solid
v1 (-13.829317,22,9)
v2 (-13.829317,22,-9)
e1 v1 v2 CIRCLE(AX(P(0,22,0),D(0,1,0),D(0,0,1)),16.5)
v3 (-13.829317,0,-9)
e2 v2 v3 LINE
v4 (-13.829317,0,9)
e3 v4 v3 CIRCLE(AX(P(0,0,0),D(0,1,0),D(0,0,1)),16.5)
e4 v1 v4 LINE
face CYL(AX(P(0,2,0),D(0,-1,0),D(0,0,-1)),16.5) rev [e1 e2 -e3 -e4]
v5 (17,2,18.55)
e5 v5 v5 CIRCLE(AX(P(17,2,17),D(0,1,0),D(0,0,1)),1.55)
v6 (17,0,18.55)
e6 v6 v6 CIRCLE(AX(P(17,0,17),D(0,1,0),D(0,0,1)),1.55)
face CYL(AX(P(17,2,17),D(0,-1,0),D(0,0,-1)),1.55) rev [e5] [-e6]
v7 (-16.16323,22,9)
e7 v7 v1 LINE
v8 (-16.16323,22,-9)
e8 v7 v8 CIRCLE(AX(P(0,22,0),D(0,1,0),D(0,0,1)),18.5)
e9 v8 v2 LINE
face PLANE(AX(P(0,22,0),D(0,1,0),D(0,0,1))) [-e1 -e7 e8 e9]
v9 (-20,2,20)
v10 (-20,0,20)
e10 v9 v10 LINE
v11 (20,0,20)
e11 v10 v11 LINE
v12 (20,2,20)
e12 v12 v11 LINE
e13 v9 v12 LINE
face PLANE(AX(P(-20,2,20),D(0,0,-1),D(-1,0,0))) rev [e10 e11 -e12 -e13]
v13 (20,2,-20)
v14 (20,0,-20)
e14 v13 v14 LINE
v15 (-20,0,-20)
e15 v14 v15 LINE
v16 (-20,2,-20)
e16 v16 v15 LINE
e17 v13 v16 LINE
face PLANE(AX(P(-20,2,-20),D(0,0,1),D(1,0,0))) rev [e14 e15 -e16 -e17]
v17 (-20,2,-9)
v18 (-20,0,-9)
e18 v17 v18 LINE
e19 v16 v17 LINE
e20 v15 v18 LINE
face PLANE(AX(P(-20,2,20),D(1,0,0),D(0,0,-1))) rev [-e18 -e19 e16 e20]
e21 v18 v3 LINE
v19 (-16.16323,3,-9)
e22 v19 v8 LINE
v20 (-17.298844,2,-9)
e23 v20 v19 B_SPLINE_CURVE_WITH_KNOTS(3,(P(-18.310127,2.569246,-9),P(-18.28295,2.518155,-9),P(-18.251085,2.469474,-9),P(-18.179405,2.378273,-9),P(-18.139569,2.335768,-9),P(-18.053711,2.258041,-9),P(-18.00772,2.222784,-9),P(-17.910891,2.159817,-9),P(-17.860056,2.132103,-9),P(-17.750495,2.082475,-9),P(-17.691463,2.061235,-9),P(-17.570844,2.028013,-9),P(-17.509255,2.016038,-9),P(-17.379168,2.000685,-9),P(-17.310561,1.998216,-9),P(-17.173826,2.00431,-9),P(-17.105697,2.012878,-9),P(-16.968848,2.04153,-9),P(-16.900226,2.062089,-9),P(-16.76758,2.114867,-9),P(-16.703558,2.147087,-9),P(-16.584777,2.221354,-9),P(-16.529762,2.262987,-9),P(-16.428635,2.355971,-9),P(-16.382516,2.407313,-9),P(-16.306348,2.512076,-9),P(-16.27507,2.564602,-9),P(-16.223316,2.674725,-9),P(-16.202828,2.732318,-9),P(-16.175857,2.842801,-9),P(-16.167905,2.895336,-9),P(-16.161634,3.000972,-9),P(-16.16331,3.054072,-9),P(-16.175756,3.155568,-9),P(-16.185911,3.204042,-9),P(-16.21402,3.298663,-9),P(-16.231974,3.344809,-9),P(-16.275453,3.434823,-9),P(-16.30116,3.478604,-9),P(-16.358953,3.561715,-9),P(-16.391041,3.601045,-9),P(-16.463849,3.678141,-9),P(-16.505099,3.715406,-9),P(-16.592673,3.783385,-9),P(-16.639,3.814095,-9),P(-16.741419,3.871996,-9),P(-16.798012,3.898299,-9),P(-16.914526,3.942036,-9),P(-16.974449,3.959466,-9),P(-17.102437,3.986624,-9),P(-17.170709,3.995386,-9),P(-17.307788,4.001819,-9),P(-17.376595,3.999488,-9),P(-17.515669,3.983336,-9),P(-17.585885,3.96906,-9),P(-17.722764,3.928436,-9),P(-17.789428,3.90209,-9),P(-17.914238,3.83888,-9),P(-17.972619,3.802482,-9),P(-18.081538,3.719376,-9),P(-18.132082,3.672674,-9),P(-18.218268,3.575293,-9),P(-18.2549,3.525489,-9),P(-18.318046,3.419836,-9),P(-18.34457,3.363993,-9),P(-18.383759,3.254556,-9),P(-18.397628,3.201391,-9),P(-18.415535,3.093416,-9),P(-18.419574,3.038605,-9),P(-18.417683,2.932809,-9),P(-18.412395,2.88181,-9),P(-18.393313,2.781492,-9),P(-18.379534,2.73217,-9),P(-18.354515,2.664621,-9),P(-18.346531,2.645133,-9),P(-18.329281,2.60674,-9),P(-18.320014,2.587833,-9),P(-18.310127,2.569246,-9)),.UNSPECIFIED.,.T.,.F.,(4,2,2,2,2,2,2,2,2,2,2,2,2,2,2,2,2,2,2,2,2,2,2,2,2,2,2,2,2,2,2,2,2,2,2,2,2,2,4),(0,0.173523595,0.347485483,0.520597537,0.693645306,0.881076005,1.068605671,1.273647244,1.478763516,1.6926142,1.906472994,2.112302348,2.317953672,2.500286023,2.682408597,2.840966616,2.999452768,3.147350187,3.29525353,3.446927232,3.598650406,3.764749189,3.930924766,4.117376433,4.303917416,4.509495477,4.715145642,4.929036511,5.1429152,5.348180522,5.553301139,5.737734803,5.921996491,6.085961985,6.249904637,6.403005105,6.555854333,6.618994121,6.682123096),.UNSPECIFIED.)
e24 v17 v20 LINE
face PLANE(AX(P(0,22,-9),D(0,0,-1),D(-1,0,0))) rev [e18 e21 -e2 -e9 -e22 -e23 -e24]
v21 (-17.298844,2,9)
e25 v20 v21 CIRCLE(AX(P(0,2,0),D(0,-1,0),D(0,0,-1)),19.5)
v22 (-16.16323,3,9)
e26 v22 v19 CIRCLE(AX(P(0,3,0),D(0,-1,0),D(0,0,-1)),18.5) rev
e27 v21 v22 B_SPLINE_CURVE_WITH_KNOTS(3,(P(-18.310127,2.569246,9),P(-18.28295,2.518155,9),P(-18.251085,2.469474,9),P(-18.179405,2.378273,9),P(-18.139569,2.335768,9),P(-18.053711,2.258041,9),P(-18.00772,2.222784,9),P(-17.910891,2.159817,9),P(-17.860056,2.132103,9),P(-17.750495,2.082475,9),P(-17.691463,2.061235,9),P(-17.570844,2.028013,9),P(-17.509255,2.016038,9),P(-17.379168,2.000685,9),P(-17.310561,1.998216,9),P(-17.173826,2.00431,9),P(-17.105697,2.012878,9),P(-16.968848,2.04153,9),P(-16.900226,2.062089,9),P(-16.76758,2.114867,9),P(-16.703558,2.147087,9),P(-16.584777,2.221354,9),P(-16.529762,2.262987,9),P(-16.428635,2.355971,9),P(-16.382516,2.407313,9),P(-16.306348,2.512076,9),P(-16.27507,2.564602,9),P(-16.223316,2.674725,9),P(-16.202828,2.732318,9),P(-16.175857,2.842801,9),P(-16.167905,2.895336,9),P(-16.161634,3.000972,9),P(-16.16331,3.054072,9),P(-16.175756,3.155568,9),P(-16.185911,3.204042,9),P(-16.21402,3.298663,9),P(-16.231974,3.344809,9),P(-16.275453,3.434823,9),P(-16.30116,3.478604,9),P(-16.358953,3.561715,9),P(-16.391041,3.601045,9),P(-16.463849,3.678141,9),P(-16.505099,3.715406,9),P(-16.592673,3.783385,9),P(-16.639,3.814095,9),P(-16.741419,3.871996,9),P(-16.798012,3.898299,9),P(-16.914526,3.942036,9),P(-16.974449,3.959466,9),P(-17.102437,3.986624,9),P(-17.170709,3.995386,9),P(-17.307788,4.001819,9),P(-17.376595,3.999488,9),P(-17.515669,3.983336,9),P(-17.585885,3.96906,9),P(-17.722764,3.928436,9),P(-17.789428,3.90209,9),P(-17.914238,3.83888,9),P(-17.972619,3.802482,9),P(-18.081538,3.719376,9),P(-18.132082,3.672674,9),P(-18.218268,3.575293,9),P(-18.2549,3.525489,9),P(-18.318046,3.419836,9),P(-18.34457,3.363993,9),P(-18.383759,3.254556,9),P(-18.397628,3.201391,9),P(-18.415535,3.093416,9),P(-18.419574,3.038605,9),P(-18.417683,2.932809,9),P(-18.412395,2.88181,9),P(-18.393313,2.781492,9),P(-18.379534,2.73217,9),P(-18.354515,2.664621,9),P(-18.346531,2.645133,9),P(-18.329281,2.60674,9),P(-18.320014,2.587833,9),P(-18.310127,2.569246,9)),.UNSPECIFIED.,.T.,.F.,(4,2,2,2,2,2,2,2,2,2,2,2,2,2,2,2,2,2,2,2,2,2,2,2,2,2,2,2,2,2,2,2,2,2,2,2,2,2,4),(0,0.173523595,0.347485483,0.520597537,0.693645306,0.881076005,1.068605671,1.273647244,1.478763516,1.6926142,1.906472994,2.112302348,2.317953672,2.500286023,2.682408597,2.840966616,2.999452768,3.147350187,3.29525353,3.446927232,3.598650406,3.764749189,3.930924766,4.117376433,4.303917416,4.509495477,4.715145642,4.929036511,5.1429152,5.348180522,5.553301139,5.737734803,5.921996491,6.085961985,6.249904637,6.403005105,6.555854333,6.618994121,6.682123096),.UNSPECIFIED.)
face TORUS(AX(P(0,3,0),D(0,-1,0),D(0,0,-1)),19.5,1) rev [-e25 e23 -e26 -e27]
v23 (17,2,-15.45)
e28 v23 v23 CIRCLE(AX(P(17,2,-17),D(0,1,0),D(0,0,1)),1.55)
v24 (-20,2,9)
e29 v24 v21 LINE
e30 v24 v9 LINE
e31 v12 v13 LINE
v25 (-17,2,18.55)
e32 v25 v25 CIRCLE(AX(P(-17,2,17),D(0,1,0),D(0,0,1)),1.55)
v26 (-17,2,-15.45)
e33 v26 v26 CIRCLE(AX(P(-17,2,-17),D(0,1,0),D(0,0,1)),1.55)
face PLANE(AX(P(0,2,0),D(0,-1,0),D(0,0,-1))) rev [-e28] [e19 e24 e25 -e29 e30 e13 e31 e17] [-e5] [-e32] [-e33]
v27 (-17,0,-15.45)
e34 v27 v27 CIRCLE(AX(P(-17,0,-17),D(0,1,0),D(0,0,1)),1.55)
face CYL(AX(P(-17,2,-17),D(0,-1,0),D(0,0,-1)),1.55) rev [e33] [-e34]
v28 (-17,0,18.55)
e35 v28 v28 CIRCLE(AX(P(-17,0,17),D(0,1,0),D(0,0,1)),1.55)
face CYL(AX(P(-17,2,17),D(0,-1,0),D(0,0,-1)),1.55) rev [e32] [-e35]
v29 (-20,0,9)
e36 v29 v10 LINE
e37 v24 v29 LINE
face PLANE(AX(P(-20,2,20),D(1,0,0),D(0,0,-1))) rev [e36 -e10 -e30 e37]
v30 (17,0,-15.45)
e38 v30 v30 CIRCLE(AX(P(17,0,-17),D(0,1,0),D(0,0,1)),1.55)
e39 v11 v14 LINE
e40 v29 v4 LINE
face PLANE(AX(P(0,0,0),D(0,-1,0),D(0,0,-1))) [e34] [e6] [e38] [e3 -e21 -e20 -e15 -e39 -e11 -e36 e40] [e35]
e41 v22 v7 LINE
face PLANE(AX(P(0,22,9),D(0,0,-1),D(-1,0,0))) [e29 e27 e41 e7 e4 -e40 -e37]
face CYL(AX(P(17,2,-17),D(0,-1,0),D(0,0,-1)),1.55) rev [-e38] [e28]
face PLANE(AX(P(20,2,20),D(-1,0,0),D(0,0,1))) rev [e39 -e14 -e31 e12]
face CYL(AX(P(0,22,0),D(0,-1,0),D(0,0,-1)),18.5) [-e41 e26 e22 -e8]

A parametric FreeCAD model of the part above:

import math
import FreeCAD as App
import Part
import Sketcher


def edges_at(feature, points):
    """Names of the edges that pass closest to the given points."""
    edges = feature.Shape.Edges
    near = lambda p: min(range(len(edges)), key=lambda i: edges[i].distToShape(Part.Vertex(*p))[0])
    return sorted({f"Edge{near(p) + 1}" for p in points})


def add_polygon(sketch, points):
    """Adds a closed chain of lines whose ends are joined by coincident constraints."""
    first, n = sketch.GeometryCount, len(points)
    for a, b in zip(points, points[1:] + points[:1]):
        sketch.addGeometry(Part.LineSegment(App.Vector(*a, 0), App.Vector(*b, 0)), False)
    for i in range(n):
        sketch.addConstraint(Sketcher.Constraint("Coincident", first + i, 2, first + (i + 1) % n, 1))

doc = App.newDocument("Part")
body = doc.addObject("PartDesign::Body", "Body")

# Sketch on XZ plane
sketch1 = body.newObject("Sketcher::SketchObject", "Sketch")
sketch1.AttachmentSupport = (doc.getObject("XZ_Plane"), [""])
sketch1.MapMode = "FlatFace"
add_polygon(sketch1, [(-20, -20), (-20, 20), (20, 20), (20, -20)])  # lines 0-3
sketch1.addGeometry(Part.Circle(App.Vector(-17, 17, 0), App.Vector(0, 0, 1), 1.6), False)  # 4
sketch1.addGeometry(Part.Circle(App.Vector(17, 17, 0), App.Vector(0, 0, 1), 1.6), False)  # 5
sketch1.addGeometry(Part.Circle(App.Vector(-17, -17, 0), App.Vector(0, 0, 1), 1.6), False)  # 6
sketch1.addGeometry(Part.Circle(App.Vector(0, 0, 0), App.Vector(0, 0, 1), 16.5), False)  # 7
sketch1.addGeometry(Part.Circle(App.Vector(17, -17, 0), App.Vector(0, 0, 1), 1.6), False)  # 8
sketch1.addConstraint(Sketcher.Constraint("Vertical", 0))
sketch1.addConstraint(Sketcher.Constraint("Horizontal", 1))
sketch1.addConstraint(Sketcher.Constraint("Vertical", 2))
sketch1.addConstraint(Sketcher.Constraint("Horizontal", 3))
sketch1.addConstraint(Sketcher.Constraint("Coincident", 7, 3, -1, 1))
sketch1.addConstraint(Sketcher.Constraint("Equal", 4, 5))
sketch1.addConstraint(Sketcher.Constraint("Equal", 5, 6))
sketch1.addConstraint(Sketcher.Constraint("Equal", 6, 8))
sketch1.addConstraint(Sketcher.Constraint("Symmetric", 5, 3, 6, 3, -1, 1))
sketch1.addConstraint(Sketcher.Constraint("Symmetric", 4, 3, 8, 3, -1, 1))
sketch1.addConstraint(Sketcher.Constraint("Symmetric", 0, 2, 2, 2, -1, 1))
sketch1.addConstraint(Sketcher.Constraint("Symmetric", 4, 3, 5, 3, -2))
sketch1.addConstraint(Sketcher.Constraint("Equal", 3, 0))
sketch1.addConstraint(Sketcher.Constraint("Diameter", 7, 33.0))
sketch1.addConstraint(Sketcher.Constraint("Diameter", 4, 3.1))
sketch1.addConstraint(Sketcher.Constraint("DistanceX", 1, 1, 1, 2, 40.0))
sketch1.addConstraint(Sketcher.Constraint("DistanceX", 4, 3, -1, 1, 17.0))
sketch1.addConstraint(Sketcher.Constraint("DistanceY", -1, 1, 4, 3, 17.0))
pad1 = body.newObject("PartDesign::Pad", "Pad")
pad1.Profile = sketch1
pad1.Length = 2
pad1.Reversed = True

# Sketch on XZ plane
sketch2 = body.newObject("Sketcher::SketchObject", "Sketch001")
sketch2.AttachmentSupport = (doc.getObject("XZ_Plane"), [""])
sketch2.MapMode = "FlatFace"
sketch2.AttachmentOffset = App.Placement(App.Vector(0, 0, -2), App.Rotation())
sketch2.addGeometry(Part.Circle(App.Vector(0, 0, 0), App.Vector(0, 0, 1), 18), False)
sketch2.addGeometry(Part.Circle(App.Vector(0, 0, 0), App.Vector(0, 0, 1), 16), False)
sketch2.addConstraint(Sketcher.Constraint("Coincident", 0, 3, -1, 1))
sketch2.addConstraint(Sketcher.Constraint("Coincident", 1, 3, -1, 1))
sketch2.addConstraint(Sketcher.Constraint("Diameter", 0, 37.0))
sketch2.addConstraint(Sketcher.Constraint("Diameter", 1, 33.0))
pad2 = body.newObject("PartDesign::Pad", "Pad001")
pad2.Profile = sketch2
pad2.Length = 20
pad2.Reversed = True
doc.recompute()

fillet = body.newObject("PartDesign::Fillet", "Fillet")
fillet.Base = (pad2, edges_at(pad2, [(0, 2, -18.5)]))
fillet.Radius = 1

# Sketch on XZ plane
sketch3 = body.newObject("Sketcher::SketchObject", "Sketch002")
sketch3.AttachmentSupport = (doc.getObject("XZ_Plane"), [""])
sketch3.MapMode = "FlatFace"
sketch3.addGeometry(Part.ArcOfCircle(Part.Circle(App.Vector(0, 0, 0), App.Vector(0, 0, 1), 16), math.radians(180), math.radians(213)), False)
sketch3.addGeometry(Part.ArcOfCircle(Part.Circle(App.Vector(0, 0, 0), App.Vector(0, 0, 1), 16), math.radians(147), math.radians(180)), False)
sketch3.addGeometry(Part.LineSegment(App.Vector(-14, 9, 0), App.Vector(-20, 9, 0)), False)
sketch3.addGeometry(Part.LineSegment(App.Vector(-20, 9, 0), App.Vector(-20, -9, 0)), False)
sketch3.addGeometry(Part.LineSegment(App.Vector(-20, -9, 0), App.Vector(-14, -9, 0)), False)
sketch3.addConstraint(Sketcher.Constraint("Tangent", 0, 1, 1, 2))
sketch3.addConstraint(Sketcher.Constraint("Coincident", 1, 1, 2, 1))
sketch3.addConstraint(Sketcher.Constraint("Coincident", 2, 2, 3, 1))
sketch3.addConstraint(Sketcher.Constraint("Coincident", 3, 2, 4, 1))
sketch3.addConstraint(Sketcher.Constraint("Coincident", 4, 2, 0, 2))
sketch3.addConstraint(Sketcher.Constraint("Horizontal", 2))
sketch3.addConstraint(Sketcher.Constraint("Vertical", 3))
sketch3.addConstraint(Sketcher.Constraint("Horizontal", 4))
sketch3.addConstraint(Sketcher.Constraint("Coincident", 0, 3, -1, 1))
sketch3.addConstraint(Sketcher.Constraint("Equal", 0, 1))
sketch3.addConstraint(Sketcher.Constraint("PointOnObject", 0, 1, -1))
sketch3.addConstraint(Sketcher.Constraint("Vertical", 1, 1, 4, 2))
sketch3.addConstraint(Sketcher.Constraint("Radius", 0, 16.5))
sketch3.addConstraint(Sketcher.Constraint("DistanceY", 3, 2, 3, 1, 18.0))
sketch3.addConstraint(Sketcher.Constraint("DistanceX", 2, 2, -1, 1, 20.0))
pocket1 = body.newObject("PartDesign::Pocket", "Pocket")
pocket1.Profile = sketch3
pocket1.Type = "ThroughAll"

doc.recompute()
